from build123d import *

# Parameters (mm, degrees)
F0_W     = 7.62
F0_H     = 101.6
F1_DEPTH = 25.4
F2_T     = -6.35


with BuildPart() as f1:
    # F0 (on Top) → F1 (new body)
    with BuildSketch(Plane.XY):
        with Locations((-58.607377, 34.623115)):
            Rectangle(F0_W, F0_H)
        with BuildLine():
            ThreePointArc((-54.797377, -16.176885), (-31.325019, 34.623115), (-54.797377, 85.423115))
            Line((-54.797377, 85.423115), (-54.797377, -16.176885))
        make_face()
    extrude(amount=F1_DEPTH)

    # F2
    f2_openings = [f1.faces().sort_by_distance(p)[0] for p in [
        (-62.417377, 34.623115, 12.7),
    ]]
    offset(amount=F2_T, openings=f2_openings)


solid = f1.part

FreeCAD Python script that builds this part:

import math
import FreeCAD as App
import Part
import Sketcher

V = App.Vector
Q = App.Units.Quantity


def faces_at(feature, points):
    """Names of the faces that lie closest to the given points."""
    faces = feature.Shape.Faces
    near = lambda p: min(range(len(faces)), key=lambda i: faces[i].distToShape(Part.Vertex(*p))[0])
    return sorted({f"Face{near(p) + 1}" for p in points})

doc = App.newDocument("Part")
body = doc.addObject("PartDesign::Body", "Body")

sketch1 = body.newObject("Sketcher::SketchObject", "Sketch")
sketch1.AttachmentSupport = (doc.getObject("XY_Plane"), [""])
sketch1.MapMode = "FlatFace"
sketch1.addGeometry(Part.LineSegment(V(-62, 85, 0), V(-62, -16, 0)), False)
sketch1.addGeometry(Part.LineSegment(V(-62, -16, 0), V(-55, -16, 0)), False)
sketch1.addGeometry(Part.ArcOfCircle(Part.Circle(V(-98, 35, 0), V(0, 0, 1), 67), math.radians(-50), math.radians(50)), False)
sketch1.addGeometry(Part.LineSegment(V(-55, 85, 0), V(-62, 85, 0)), False)
sketch1.addConstraint(Sketcher.Constraint("Coincident", 0, 2, 1, 1))
sketch1.addConstraint(Sketcher.Constraint("Coincident", 1, 2, 2, 1))
sketch1.addConstraint(Sketcher.Constraint("Coincident", 2, 2, 3, 1))
sketch1.addConstraint(Sketcher.Constraint("Coincident", 3, 2, 0, 1))
sketch1.addConstraint(Sketcher.Constraint("Vertical", 0))
sketch1.addConstraint(Sketcher.Constraint("Horizontal", 1))
sketch1.addConstraint(Sketcher.Constraint("Horizontal", 3))
sketch1.addConstraint(Sketcher.Constraint("Vertical", 1, 2, 2, 2))
sketch1.addConstraint(Sketcher.Constraint("DistanceY", 0, 2, 0, 1, Q("4 in")))
sketch1.addConstraint(Sketcher.Constraint("DistanceX", 1, 1, 1, 2, Q("0.3 in")))
sketch1.addConstraint(Sketcher.Constraint("Radius", 2, 66.708074))
sketch1.addConstraint(Sketcher.Constraint("DistanceX", 2, 3, -1, 1, 98.033093))
sketch1.addConstraint(Sketcher.Constraint("DistanceY", -1, 1, 2, 3, 34.623115))
pad1 = body.newObject("PartDesign::Pad", "Pad")
pad1.Profile = sketch1
pad1.Length = Q("1 in")
doc.recompute()

thickness = body.newObject("PartDesign::Thickness", "Thickness")
thickness.Base = (pad1, faces_at(pad1, [(-62.417, 34.623, 12.7)]))
thickness.Value = Q("0.25 in")
thickness.Reversed = True
thickness.Join = "Arc"

doc.recompute()
